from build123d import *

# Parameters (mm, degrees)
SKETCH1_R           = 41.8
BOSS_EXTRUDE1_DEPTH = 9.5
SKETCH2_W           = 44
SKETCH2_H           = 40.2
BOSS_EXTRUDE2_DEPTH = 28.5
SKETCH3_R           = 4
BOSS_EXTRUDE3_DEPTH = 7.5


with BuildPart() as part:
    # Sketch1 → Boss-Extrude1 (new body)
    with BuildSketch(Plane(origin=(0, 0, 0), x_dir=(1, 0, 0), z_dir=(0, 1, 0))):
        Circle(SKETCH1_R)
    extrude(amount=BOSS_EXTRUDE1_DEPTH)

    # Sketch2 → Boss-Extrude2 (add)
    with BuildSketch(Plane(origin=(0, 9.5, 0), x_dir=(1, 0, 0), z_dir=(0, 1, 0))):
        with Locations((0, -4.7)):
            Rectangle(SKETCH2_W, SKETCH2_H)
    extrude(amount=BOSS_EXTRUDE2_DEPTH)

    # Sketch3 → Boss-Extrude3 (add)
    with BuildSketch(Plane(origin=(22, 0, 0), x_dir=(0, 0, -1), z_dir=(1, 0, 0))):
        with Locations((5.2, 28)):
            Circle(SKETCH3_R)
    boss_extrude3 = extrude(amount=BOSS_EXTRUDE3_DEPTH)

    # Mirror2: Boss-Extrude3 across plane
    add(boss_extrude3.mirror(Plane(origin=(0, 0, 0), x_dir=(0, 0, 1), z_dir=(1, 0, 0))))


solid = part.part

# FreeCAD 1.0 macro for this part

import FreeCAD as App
import Part
import Sketcher


def add_polygon(sketch, points):
    """Adds a closed chain of lines whose ends are joined by coincident constraints."""
    first, n = sketch.GeometryCount, len(points)
    for a, b in zip(points, points[1:] + points[:1]):
        sketch.addGeometry(Part.LineSegment(App.Vector(*a, 0), App.Vector(*b, 0)), False)
    for i in range(n):
        sketch.addConstraint(Sketcher.Constraint("Coincident", first + i, 2, first + (i + 1) % n, 1))

doc = App.newDocument("Part")
params = doc.addObject("Spreadsheet::Sheet", "Params")
for row, (alias, value) in enumerate([
    ("sketch1_diameter", "83.6 mm"),
    ("pad1_length", "9.5 mm"),
    ("sketch2_width", "44 mm"),
    ("sketch2_height", "40.2 mm"),
    ("pad2_length", "28.5 mm"),
    ("sketch3_diameter", "8 mm"),
    ("pad3_length", "7.5 mm"),
], start=1):
    params.set(f"A{row}", alias)
    params.set(f"B{row}", "=" + value)
    params.setAlias(f"B{row}", alias)

body = doc.addObject("PartDesign::Body", "Body")

# Sketch on XZ plane
sketch1 = body.newObject("Sketcher::SketchObject", "Sketch")
sketch1.AttachmentSupport = (doc.getObject("XZ_Plane"), [""])
sketch1.MapMode = "FlatFace"
sketch1.addGeometry(Part.Circle(App.Vector(0, 0, 0), App.Vector(0, 0, 1), 42), False)
sketch1.addConstraint(Sketcher.Constraint("Coincident", 0, 3, -1, 1))
sketch1.addConstraint(Sketcher.Constraint("Diameter", 0, 83.6))
sketch1.setExpression("Constraints[1]", "Params.sketch1_diameter")
pad1 = body.newObject("PartDesign::Pad", "Pad")
pad1.Profile = sketch1
pad1.setExpression("Length", "Params.pad1_length")
pad1.Reversed = True

# Sketch on XZ plane
sketch2 = body.newObject("Sketcher::SketchObject", "Sketch001")
sketch2.AttachmentSupport = (doc.getObject("XZ_Plane"), [""])
sketch2.MapMode = "FlatFace"
sketch2.AttachmentOffset = App.Placement(App.Vector(0, 0, -9.5), App.Rotation())
add_polygon(sketch2, [(-22, -15), (-22, 25), (22, 25), (22, -15)])  # lines 0-3
sketch2.addConstraint(Sketcher.Constraint("Vertical", 0))
sketch2.addConstraint(Sketcher.Constraint("Horizontal", 1))
sketch2.addConstraint(Sketcher.Constraint("Vertical", 2))
sketch2.addConstraint(Sketcher.Constraint("Horizontal", 3))
sketch2.addConstraint(Sketcher.Constraint("DistanceX", 1, 1, 1, 2, 44.0))
sketch2.addConstraint(Sketcher.Constraint("DistanceY", 0, 1, 0, 2, 40.2))
sketch2.addConstraint(Sketcher.Constraint("DistanceX", 0, 2, -1, 1, 22.0))
sketch2.addConstraint(Sketcher.Constraint("DistanceY", -1, 1, 0, 2, 24.8))
sketch2.setExpression("Constraints[8]", "Params.sketch2_width")
sketch2.setExpression("Constraints[9]", "Params.sketch2_height")
pad2 = body.newObject("PartDesign::Pad", "Pad001")
pad2.Profile = sketch2
pad2.setExpression("Length", "Params.pad2_length")
pad2.Reversed = True

# Sketch on YZ plane
sketch3 = body.newObject("Sketcher::SketchObject", "Sketch002")
sketch3.AttachmentSupport = (doc.getObject("YZ_Plane"), [""])
sketch3.MapMode = "FlatFace"
sketch3.AttachmentOffset = App.Placement(App.Vector(0, 0, 22), App.Rotation())
sketch3.addGeometry(Part.Circle(App.Vector(28, -5.2, 0), App.Vector(0, 0, 1), 4), False)
sketch3.addConstraint(Sketcher.Constraint("Diameter", 0, 8.0))
sketch3.addConstraint(Sketcher.Constraint("DistanceX", -1, 1, 0, 3, 28.0))
sketch3.addConstraint(Sketcher.Constraint("DistanceY", 0, 3, -1, 1, 5.2))
sketch3.setExpression("Constraints[0]", "Params.sketch3_diameter")
pad3 = body.newObject("PartDesign::Pad", "Pad002")
pad3.Profile = sketch3
pad3.setExpression("Length", "Params.pad3_length")
doc.recompute()

mirrored = body.newObject("PartDesign::Mirrored", "Mirrored")
mirrored.Originals = [pad3]
mirrored.MirrorPlane = (doc.getObject("YZ_Plane"), [""])
body.Tip = mirrored

doc.recompute()
